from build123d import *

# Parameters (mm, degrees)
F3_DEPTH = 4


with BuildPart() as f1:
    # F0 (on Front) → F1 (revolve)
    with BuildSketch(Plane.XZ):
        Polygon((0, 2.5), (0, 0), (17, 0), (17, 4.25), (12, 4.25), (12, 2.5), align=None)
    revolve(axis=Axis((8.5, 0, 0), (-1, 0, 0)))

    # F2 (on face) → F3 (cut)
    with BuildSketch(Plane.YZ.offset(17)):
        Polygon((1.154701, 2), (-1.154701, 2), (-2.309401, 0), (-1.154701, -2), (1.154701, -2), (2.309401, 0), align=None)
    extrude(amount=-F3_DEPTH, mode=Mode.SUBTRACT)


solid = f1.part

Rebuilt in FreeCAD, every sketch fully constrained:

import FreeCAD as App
import Part
import Sketcher
from FreeCAD import Vector
Q = App.Units.Quantity


def add_polygon(sketch, points):
    """Adds a closed chain of lines whose ends are joined by coincident constraints."""
    first, n = sketch.GeometryCount, len(points)
    for a, b in zip(points, points[1:] + points[:1]):
        sketch.addGeometry(Part.LineSegment(App.Vector(*a, 0), App.Vector(*b, 0)), False)
    for i in range(n):
        sketch.addConstraint(Sketcher.Constraint("Coincident", first + i, 2, first + (i + 1) % n, 1))

doc = App.newDocument("Part")
body = doc.addObject("PartDesign::Body", "Body")

# Sketch on XZ plane
sketch1 = doc.addObject("Sketcher::SketchObject", "Sketch")
body.addObject(sketch1)
sketch1.AttachmentSupport = (doc.XZ_Plane, [""])
sketch1.MapMode = "FlatFace"
add_polygon(sketch1, [(0, 2.5), (0, 0), (17, 0), (17, 4.2), (12, 4.2), (12, 2.5)])  # lines 0-5
sketch1.addConstraint(Sketcher.Constraint("Vertical", 0))
sketch1.addConstraint(Sketcher.Constraint("Horizontal", 1))
sketch1.addConstraint(Sketcher.Constraint("Vertical", 2))
sketch1.addConstraint(Sketcher.Constraint("Horizontal", 3))
sketch1.addConstraint(Sketcher.Constraint("Vertical", 4))
sketch1.addConstraint(Sketcher.Constraint("Horizontal", 5))
sketch1.addConstraint(Sketcher.Constraint("Coincident", 0, 2, -1, 1))
sketch1.addConstraint(Sketcher.Constraint("DistanceX", 1, 1, 1, 2, Q("17 mm")))
sketch1.addConstraint(Sketcher.Constraint("DistanceX", 3, 2, 3, 1, Q("5 mm")))
sketch1.addConstraint(Sketcher.Constraint("DistanceY", 0, 2, 0, 1, Q("2.5 mm")))
sketch1.addConstraint(Sketcher.Constraint("DistanceY", 2, 1, 2, 2, Q("4.25 mm")))
revolution = doc.addObject("PartDesign::Revolution", "Revolution")
body.addObject(revolution)
revolution.Profile = sketch1
revolution.ReferenceAxis = (sketch1, ["H_Axis"])
revolution.Angle = 360

# Sketch on YZ plane
sketch2 = doc.addObject("Sketcher::SketchObject", "Sketch001")
body.addObject(sketch2)
sketch2.AttachmentSupport = (doc.YZ_Plane, [""])
sketch2.MapMode = "FlatFace"
sketch2.AttachmentOffset = App.Placement(Vector(0, 0, 17), App.Rotation())
add_polygon(sketch2, [(1.2, 2), (-1.2, 2), (-2.3, 0), (-1.2, -2), (1.2, -2), (2.3, 0)])  # lines 0-5
sketch2.addConstraint(Sketcher.Constraint("Horizontal", 0))
sketch2.addConstraint(Sketcher.Constraint("Horizontal", 3))
sketch2.addConstraint(Sketcher.Constraint("Symmetric", 0, 2, 3, 2, -1, 1))
sketch2.addConstraint(Sketcher.Constraint("Symmetric", 1, 2, 4, 2, -1, 1))
sketch2.addConstraint(Sketcher.Constraint("PointOnObject", 1, 2, -1))
sketch2.addConstraint(Sketcher.Constraint("Parallel", 2, 5))
sketch2.addConstraint(Sketcher.Constraint("Vertical", 0, 2, 2, 2))
sketch2.addConstraint(Sketcher.Constraint("Angle", 1, Q("-119.999988 deg")))
sketch2.addConstraint(Sketcher.Constraint("DistanceY", -1, 1, 0, 2, Q("2 mm")))
sketch2.addConstraint(Sketcher.Constraint("DistanceX", 0, 2, 0, 1, Q("2.309402 mm")))
pocket1 = doc.addObject("PartDesign::Pocket", "Pocket")
body.addObject(pocket1)
pocket1.Profile = sketch2
pocket1.Length = 4

doc.recompute()
